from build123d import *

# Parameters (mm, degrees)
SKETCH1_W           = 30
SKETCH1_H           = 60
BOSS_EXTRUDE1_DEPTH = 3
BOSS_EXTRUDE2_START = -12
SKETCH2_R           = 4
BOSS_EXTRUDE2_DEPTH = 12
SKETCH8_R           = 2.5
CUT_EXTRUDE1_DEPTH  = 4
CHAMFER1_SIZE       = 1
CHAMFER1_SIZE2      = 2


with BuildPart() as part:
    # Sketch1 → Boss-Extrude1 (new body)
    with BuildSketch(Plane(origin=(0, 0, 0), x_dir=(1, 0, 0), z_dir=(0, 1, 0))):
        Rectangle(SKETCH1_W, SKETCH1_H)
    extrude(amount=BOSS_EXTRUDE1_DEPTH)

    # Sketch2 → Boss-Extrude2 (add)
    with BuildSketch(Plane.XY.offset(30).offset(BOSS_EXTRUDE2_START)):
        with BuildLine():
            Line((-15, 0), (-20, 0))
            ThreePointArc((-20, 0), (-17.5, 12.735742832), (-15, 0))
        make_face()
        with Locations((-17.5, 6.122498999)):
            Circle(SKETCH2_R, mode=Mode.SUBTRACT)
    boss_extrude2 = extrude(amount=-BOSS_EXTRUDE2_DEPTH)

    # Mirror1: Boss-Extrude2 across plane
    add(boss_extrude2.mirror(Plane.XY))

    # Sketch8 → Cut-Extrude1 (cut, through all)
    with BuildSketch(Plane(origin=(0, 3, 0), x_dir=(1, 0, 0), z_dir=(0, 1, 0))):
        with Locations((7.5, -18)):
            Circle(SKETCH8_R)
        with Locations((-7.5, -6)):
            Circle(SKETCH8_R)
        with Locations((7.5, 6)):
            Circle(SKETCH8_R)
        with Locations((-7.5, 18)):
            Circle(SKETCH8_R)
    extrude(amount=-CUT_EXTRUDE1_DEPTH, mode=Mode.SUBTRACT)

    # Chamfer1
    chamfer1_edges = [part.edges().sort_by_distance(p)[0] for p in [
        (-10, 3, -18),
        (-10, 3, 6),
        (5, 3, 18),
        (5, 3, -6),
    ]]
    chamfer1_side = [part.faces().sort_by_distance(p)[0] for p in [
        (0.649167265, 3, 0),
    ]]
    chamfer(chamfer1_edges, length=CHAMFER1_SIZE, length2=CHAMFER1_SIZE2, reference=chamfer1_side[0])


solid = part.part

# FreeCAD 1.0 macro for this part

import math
import FreeCAD as App
import Part
import Sketcher

V = App.Vector


def edges_at(feature, points):
    """Names of the edges that pass closest to the given points."""
    edges = feature.Shape.Edges
    near = lambda p: min(range(len(edges)), key=lambda i: edges[i].distToShape(Part.Vertex(*p))[0])
    return sorted({f"Edge{near(p) + 1}" for p in points})


def add_polygon(sketch, points):
    """Adds a closed chain of lines whose ends are joined by coincident constraints."""
    first, n = sketch.GeometryCount, len(points)
    for a, b in zip(points, points[1:] + points[:1]):
        sketch.addGeometry(Part.LineSegment(App.Vector(*a, 0), App.Vector(*b, 0)), False)
    for i in range(n):
        sketch.addConstraint(Sketcher.Constraint("Coincident", first + i, 2, first + (i + 1) % n, 1))

doc = App.newDocument("Part")
body = doc.addObject("PartDesign::Body", "Body")

# Sketch on XZ plane
sketch1 = body.newObject("Sketcher::SketchObject", "Sketch")
sketch1.AttachmentSupport = (doc.getObject("XZ_Plane"), [""])
sketch1.MapMode = "FlatFace"
add_polygon(sketch1, [(-15, -30), (-15, 30), (15, 30), (15, -30)])  # lines 0-3
sketch1.addConstraint([
    Sketcher.Constraint("Vertical", 0),
    Sketcher.Constraint("Horizontal", 1),
    Sketcher.Constraint("Vertical", 2),
    Sketcher.Constraint("Horizontal", 3),
    Sketcher.Constraint("Symmetric", 0, 2, 2, 2, -1, 1),
    Sketcher.Constraint("DistanceX", 1, 1, 1, 2, 30.0),
    Sketcher.Constraint("DistanceY", 0, 1, 0, 2, 60.0),
])
pad1 = body.newObject("PartDesign::Pad", "Pad")
pad1.Profile = sketch1
pad1.Length = 3
pad1.Reversed = True

# Sketch on XY plane
sketch2 = body.newObject("Sketcher::SketchObject", "Sketch001")
sketch2.AttachmentSupport = (doc.getObject("XY_Plane"), [""])
sketch2.MapMode = "FlatFace"
sketch2.AttachmentOffset = App.Placement(V(0, 0, 18), App.Rotation())
sketch2.addGeometry([
    Part.LineSegment(V(-20, 0, 0), V(-15, 0, 0)),
    Part.ArcOfCircle(Part.Circle(V(-17.5, 6.1, 0), V(0, 0, 1), 6.6), math.radians(-68), math.radians(248)),
    Part.Circle(V(-17.5, 6.1, 0), V(0, 0, 1), 4),
], False)
sketch2.addConstraint([
    Sketcher.Constraint("Coincident", 0, 1, 1, 2),
    Sketcher.Constraint("Coincident", 1, 1, 0, 2),
    Sketcher.Constraint("Horizontal", 0),
    Sketcher.Constraint("Coincident", 2, 3, 1, 3),
    Sketcher.Constraint("PointOnObject", 0, 1, -1),
    Sketcher.Constraint("Diameter", 2, 8.0),
    Sketcher.Constraint("DistanceX", 0, 1, 0, 2, 5.0),
    Sketcher.Constraint("DistanceX", 0, 1, -1, 1, 20.0),
    Sketcher.Constraint("Radius", 1, 6.613244),
])
pad2 = body.newObject("PartDesign::Pad", "Pad001")
pad2.Profile = sketch2
pad2.Length = 12
pad2.Reversed = True
doc.recompute()

mirrored = body.newObject("PartDesign::Mirrored", "Mirrored")
mirrored.Originals = [pad2]
mirrored.MirrorPlane = (doc.getObject("XY_Plane"), [""])
body.Tip = mirrored

# Sketch on XZ plane
sketch3 = body.newObject("Sketcher::SketchObject", "Sketch002")
sketch3.AttachmentSupport = (doc.getObject("XZ_Plane"), [""])
sketch3.MapMode = "FlatFace"
sketch3.AttachmentOffset = App.Placement(V(0, 0, -3), App.Rotation())
sketch3.addGeometry([
    Part.Circle(V(7.5, 18, 0), V(0, 0, 1), 2.5),
    Part.Circle(V(-7.5, 6, 0), V(0, 0, 1), 2.5),
    Part.Circle(V(7.5, -6, 0), V(0, 0, 1), 2.5),
    Part.Circle(V(-7.5, -18, 0), V(0, 0, 1), 2.5),
], False)
sketch3.addConstraint([
    Sketcher.Constraint("Equal", 0, 1),
    Sketcher.Constraint("Equal", 1, 2),
    Sketcher.Constraint("Equal", 2, 3),
    Sketcher.Constraint("Symmetric", 1, 3, 2, 3, -1, 1),
    Sketcher.Constraint("Symmetric", 0, 3, 3, 3, -1, 1),
    Sketcher.Constraint("Vertical", 0, 3, 2, 3),
    Sketcher.Constraint("Diameter", 0, 5.0),
    Sketcher.Constraint("DistanceY", -1, 1, 0, 3, 18.0),
    Sketcher.Constraint("DistanceY", -1, 1, 1, 3, 6.0),
    Sketcher.Constraint("DistanceX", 1, 3, 0, 3, 15.0),
])
pocket1 = body.newObject("PartDesign::Pocket", "Pocket")
pocket1.Profile = sketch3
pocket1.Type = "ThroughAll"
pocket1.Reversed = True
doc.recompute()

chamfer = body.newObject("PartDesign::Chamfer", "Chamfer")
chamfer.Base = (pocket1, edges_at(pocket1, [
    (-10, 3, -18),
    (-10, 3, 6),
    (5, 3, 18),
    (5, 3, -6),
]))
chamfer.ChamferType = "Two distances"
chamfer.Size = 1
chamfer.Size2 = 2

doc.recompute()
